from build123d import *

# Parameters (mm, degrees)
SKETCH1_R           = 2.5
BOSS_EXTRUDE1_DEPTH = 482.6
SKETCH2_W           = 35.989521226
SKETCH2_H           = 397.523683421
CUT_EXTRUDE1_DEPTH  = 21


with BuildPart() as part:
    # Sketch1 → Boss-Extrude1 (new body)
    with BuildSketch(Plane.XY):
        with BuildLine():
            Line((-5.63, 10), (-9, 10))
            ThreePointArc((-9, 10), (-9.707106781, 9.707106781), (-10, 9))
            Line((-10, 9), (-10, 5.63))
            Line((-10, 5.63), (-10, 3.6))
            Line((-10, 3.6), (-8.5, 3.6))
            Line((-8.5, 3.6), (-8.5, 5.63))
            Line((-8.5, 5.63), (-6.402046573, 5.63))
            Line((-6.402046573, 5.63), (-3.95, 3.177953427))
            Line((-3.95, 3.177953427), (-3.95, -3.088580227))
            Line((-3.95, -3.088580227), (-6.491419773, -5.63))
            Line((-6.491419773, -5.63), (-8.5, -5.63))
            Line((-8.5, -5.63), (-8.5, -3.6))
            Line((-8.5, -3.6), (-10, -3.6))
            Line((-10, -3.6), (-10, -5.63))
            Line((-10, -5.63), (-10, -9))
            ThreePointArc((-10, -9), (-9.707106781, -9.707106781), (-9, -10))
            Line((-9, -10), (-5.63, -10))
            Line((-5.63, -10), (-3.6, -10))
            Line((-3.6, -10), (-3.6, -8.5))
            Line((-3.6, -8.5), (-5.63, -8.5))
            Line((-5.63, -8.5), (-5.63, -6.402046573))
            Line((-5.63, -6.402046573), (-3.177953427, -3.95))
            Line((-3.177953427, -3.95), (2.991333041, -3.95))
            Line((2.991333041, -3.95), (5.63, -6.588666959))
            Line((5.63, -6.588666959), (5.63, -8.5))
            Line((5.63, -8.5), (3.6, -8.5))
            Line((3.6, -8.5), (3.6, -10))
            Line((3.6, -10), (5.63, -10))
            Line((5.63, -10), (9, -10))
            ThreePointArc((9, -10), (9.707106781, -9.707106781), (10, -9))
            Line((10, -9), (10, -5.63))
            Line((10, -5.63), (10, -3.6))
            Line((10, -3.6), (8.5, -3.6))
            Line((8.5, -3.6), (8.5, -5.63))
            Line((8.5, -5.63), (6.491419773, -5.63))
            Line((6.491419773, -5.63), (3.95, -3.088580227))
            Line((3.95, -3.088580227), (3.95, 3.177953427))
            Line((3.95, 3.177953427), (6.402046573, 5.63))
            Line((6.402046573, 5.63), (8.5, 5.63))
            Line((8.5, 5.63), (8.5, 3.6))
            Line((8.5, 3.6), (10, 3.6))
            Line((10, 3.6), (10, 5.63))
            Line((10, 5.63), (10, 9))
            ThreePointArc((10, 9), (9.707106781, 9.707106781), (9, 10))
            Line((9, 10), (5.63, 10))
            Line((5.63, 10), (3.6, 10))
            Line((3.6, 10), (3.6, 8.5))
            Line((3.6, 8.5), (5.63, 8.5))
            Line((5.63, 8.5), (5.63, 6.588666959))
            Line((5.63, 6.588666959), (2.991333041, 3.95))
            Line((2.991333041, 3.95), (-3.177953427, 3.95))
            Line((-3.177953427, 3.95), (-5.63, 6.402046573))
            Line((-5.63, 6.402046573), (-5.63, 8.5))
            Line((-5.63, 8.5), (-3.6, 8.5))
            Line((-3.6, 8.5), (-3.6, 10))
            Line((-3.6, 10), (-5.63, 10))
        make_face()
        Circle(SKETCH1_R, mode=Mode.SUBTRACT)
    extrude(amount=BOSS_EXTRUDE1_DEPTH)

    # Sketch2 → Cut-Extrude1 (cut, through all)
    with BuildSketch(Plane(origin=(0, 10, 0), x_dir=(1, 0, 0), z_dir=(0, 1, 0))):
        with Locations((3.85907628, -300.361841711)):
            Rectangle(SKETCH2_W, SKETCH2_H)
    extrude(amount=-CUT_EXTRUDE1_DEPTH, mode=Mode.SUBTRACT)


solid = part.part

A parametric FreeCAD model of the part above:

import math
import FreeCAD as App
import Part
import Sketcher
from FreeCAD import Vector
Q = App.Units.Quantity

doc = App.newDocument("Part")
body = doc.addObject("PartDesign::Body", "Body")

# Sketch on XY plane
sketch1 = body.newObject("Sketcher::SketchObject", "Sketch")
sketch1.AttachmentSupport = (doc.getObject("XY_Plane"), [""])
sketch1.MapMode = "FlatFace"
sketch1.addGeometry([
    Part.ArcOfCircle(Part.Circle(Vector(-9, 9, 0), Vector(0, 0, 1), 1), math.radians(90), math.radians(180)),  # 0
    Part.LineSegment(Vector(-10, 9, 0), Vector(-10, 3.6, 0)),  # 1
    Part.LineSegment(Vector(-10, 3.6, 0), Vector(-8.5, 3.6, 0)),  # 2
    Part.LineSegment(Vector(-8.5, 3.6, 0), Vector(-8.5, 5.6, 0)),  # 3
    Part.LineSegment(Vector(-8.5, 5.6, 0), Vector(-6.4, 5.6, 0)),  # 4
    Part.LineSegment(Vector(-6.4, 5.6, 0), Vector(-4, 3.2, 0)),  # 5
    Part.LineSegment(Vector(-4, 3.2, 0), Vector(-4, -3.1, 0)),  # 6
    Part.LineSegment(Vector(-4, -3.1, 0), Vector(-6.5, -5.6, 0)),  # 7
    Part.LineSegment(Vector(-6.5, -5.6, 0), Vector(-8.5, -5.6, 0)),  # 8
    Part.LineSegment(Vector(-8.5, -5.6, 0), Vector(-8.5, -3.6, 0)),  # 9
    Part.LineSegment(Vector(-8.5, -3.6, 0), Vector(-10, -3.6, 0)),  # 10
    Part.LineSegment(Vector(-10, -3.6, 0), Vector(-10, -9, 0)),  # 11
    Part.ArcOfCircle(Part.Circle(Vector(-9, -9, 0), Vector(0, 0, 1), 1), math.radians(-180), math.radians(-90)),  # 12
    Part.LineSegment(Vector(-9, -10, 0), Vector(-3.6, -10, 0)),  # 13
    Part.LineSegment(Vector(-3.6, -10, 0), Vector(-3.6, -8.5, 0)),  # 14
    Part.LineSegment(Vector(-3.6, -8.5, 0), Vector(-5.6, -8.5, 0)),  # 15
    Part.LineSegment(Vector(-5.6, -8.5, 0), Vector(-5.6, -6.4, 0)),  # 16
    Part.LineSegment(Vector(-5.6, -6.4, 0), Vector(-3.2, -4, 0)),  # 17
    Part.LineSegment(Vector(-3.2, -4, 0), Vector(3, -4, 0)),  # 18
    Part.LineSegment(Vector(3, -4, 0), Vector(5.6, -6.6, 0)),  # 19
    Part.LineSegment(Vector(5.6, -6.6, 0), Vector(5.6, -8.5, 0)),  # 20
    Part.LineSegment(Vector(5.6, -8.5, 0), Vector(3.6, -8.5, 0)),  # 21
    Part.LineSegment(Vector(3.6, -8.5, 0), Vector(3.6, -10, 0)),  # 22
    Part.LineSegment(Vector(3.6, -10, 0), Vector(9, -10, 0)),  # 23
    Part.ArcOfCircle(Part.Circle(Vector(9, -9, 0), Vector(0, 0, 1), 1), math.radians(-90), math.radians(0)),  # 24
    Part.LineSegment(Vector(10, -9, 0), Vector(10, -3.6, 0)),  # 25
    Part.LineSegment(Vector(10, -3.6, 0), Vector(8.5, -3.6, 0)),  # 26
    Part.LineSegment(Vector(8.5, -3.6, 0), Vector(8.5, -5.6, 0)),  # 27
    Part.LineSegment(Vector(8.5, -5.6, 0), Vector(6.5, -5.6, 0)),  # 28
    Part.LineSegment(Vector(6.5, -5.6, 0), Vector(4, -3.1, 0)),  # 29
    Part.LineSegment(Vector(4, -3.1, 0), Vector(4, 3.2, 0)),  # 30
    Part.LineSegment(Vector(4, 3.2, 0), Vector(6.4, 5.6, 0)),  # 31
    Part.LineSegment(Vector(6.4, 5.6, 0), Vector(8.5, 5.6, 0)),  # 32
    Part.LineSegment(Vector(8.5, 5.6, 0), Vector(8.5, 3.6, 0)),  # 33
    Part.LineSegment(Vector(8.5, 3.6, 0), Vector(10, 3.6, 0)),  # 34
    Part.LineSegment(Vector(10, 3.6, 0), Vector(10, 9, 0)),  # 35
    Part.ArcOfCircle(Part.Circle(Vector(9, 9, 0), Vector(0, 0, 1), 1), math.radians(0), math.radians(90)),  # 36
    Part.LineSegment(Vector(9, 10, 0), Vector(3.6, 10, 0)),  # 37
    Part.LineSegment(Vector(3.6, 10, 0), Vector(3.6, 8.5, 0)),  # 38
    Part.LineSegment(Vector(3.6, 8.5, 0), Vector(5.6, 8.5, 0)),  # 39
    Part.LineSegment(Vector(5.6, 8.5, 0), Vector(5.6, 6.6, 0)),  # 40
    Part.LineSegment(Vector(5.6, 6.6, 0), Vector(3, 4, 0)),  # 41
    Part.LineSegment(Vector(3, 4, 0), Vector(-3.2, 4, 0)),  # 42
    Part.LineSegment(Vector(-3.2, 4, 0), Vector(-5.6, 6.4, 0)),  # 43
    Part.LineSegment(Vector(-5.6, 6.4, 0), Vector(-5.6, 8.5, 0)),  # 44
    Part.LineSegment(Vector(-5.6, 8.5, 0), Vector(-3.6, 8.5, 0)),  # 45
    Part.LineSegment(Vector(-3.6, 8.5, 0), Vector(-3.6, 10, 0)),  # 46
    Part.LineSegment(Vector(-3.6, 10, 0), Vector(-9, 10, 0)),  # 47
    Part.Circle(Vector(0, 0, 0), Vector(0, 0, 1), 2.5),  # 48
], False)
sketch1.addConstraint([
    Sketcher.Constraint("Tangent", 0, 2, 1, 1),
    Sketcher.Constraint("Coincident", 1, 2, 2, 1),
    Sketcher.Constraint("Coincident", 2, 2, 3, 1),
    Sketcher.Constraint("Coincident", 3, 2, 4, 1),
    Sketcher.Constraint("Coincident", 4, 2, 5, 1),
    Sketcher.Constraint("Coincident", 5, 2, 6, 1),
    Sketcher.Constraint("Coincident", 6, 2, 7, 1),
    Sketcher.Constraint("Coincident", 7, 2, 8, 1),
    Sketcher.Constraint("Coincident", 8, 2, 9, 1),
    Sketcher.Constraint("Coincident", 9, 2, 10, 1),
    Sketcher.Constraint("Coincident", 10, 2, 11, 1),
    Sketcher.Constraint("Tangent", 11, 2, 12, 1),
    Sketcher.Constraint("Tangent", 12, 2, 13, 1),
    Sketcher.Constraint("Coincident", 13, 2, 14, 1),
    Sketcher.Constraint("Coincident", 14, 2, 15, 1),
    Sketcher.Constraint("Coincident", 15, 2, 16, 1),
    Sketcher.Constraint("Coincident", 16, 2, 17, 1),
    Sketcher.Constraint("Coincident", 17, 2, 18, 1),
    Sketcher.Constraint("Coincident", 18, 2, 19, 1),
    Sketcher.Constraint("Coincident", 19, 2, 20, 1),
    Sketcher.Constraint("Coincident", 20, 2, 21, 1),
    Sketcher.Constraint("Coincident", 21, 2, 22, 1),
    Sketcher.Constraint("Coincident", 22, 2, 23, 1),
    Sketcher.Constraint("Tangent", 23, 2, 24, 1),
    Sketcher.Constraint("Tangent", 24, 2, 25, 1),
    Sketcher.Constraint("Coincident", 25, 2, 26, 1),
    Sketcher.Constraint("Coincident", 26, 2, 27, 1),
    Sketcher.Constraint("Coincident", 27, 2, 28, 1),
    Sketcher.Constraint("Coincident", 28, 2, 29, 1),
    Sketcher.Constraint("Coincident", 29, 2, 30, 1),
    Sketcher.Constraint("Coincident", 30, 2, 31, 1),
    Sketcher.Constraint("Coincident", 31, 2, 32, 1),
    Sketcher.Constraint("Coincident", 32, 2, 33, 1),
    Sketcher.Constraint("Coincident", 33, 2, 34, 1),
    Sketcher.Constraint("Coincident", 34, 2, 35, 1),
    Sketcher.Constraint("Tangent", 35, 2, 36, 1),
    Sketcher.Constraint("Tangent", 36, 2, 37, 1),
    Sketcher.Constraint("Coincident", 37, 2, 38, 1),
    Sketcher.Constraint("Coincident", 38, 2, 39, 1),
    Sketcher.Constraint("Coincident", 39, 2, 40, 1),
    Sketcher.Constraint("Coincident", 40, 2, 41, 1),
    Sketcher.Constraint("Coincident", 41, 2, 42, 1),
    Sketcher.Constraint("Coincident", 42, 2, 43, 1),
    Sketcher.Constraint("Coincident", 43, 2, 44, 1),
    Sketcher.Constraint("Coincident", 44, 2, 45, 1),
    Sketcher.Constraint("Coincident", 45, 2, 46, 1),
    Sketcher.Constraint("Coincident", 46, 2, 47, 1),
    Sketcher.Constraint("Tangent", 47, 2, 0, 1),
    Sketcher.Constraint("Vertical", 1),
    Sketcher.Constraint("Horizontal", 2),
    Sketcher.Constraint("Vertical", 3),
    Sketcher.Constraint("Horizontal", 4),
    Sketcher.Constraint("Vertical", 6),
    Sketcher.Constraint("Horizontal", 8),
    Sketcher.Constraint("Vertical", 9),
    Sketcher.Constraint("Horizontal", 10),
    Sketcher.Constraint("Vertical", 11),
    Sketcher.Constraint("Horizontal", 13),
    Sketcher.Constraint("Vertical", 14),
    Sketcher.Constraint("Horizontal", 15),
    Sketcher.Constraint("Vertical", 16),
    Sketcher.Constraint("Horizontal", 18),
    Sketcher.Constraint("Vertical", 20),
    Sketcher.Constraint("Horizontal", 21),
    Sketcher.Constraint("Vertical", 22),
    Sketcher.Constraint("Horizontal", 23),
    Sketcher.Constraint("Vertical", 25),
    Sketcher.Constraint("Horizontal", 26),
    Sketcher.Constraint("Vertical", 27),
    Sketcher.Constraint("Horizontal", 28),
    Sketcher.Constraint("Vertical", 30),
    Sketcher.Constraint("Horizontal", 32),
    Sketcher.Constraint("Vertical", 33),
    Sketcher.Constraint("Horizontal", 34),
    Sketcher.Constraint("Vertical", 35),
    Sketcher.Constraint("Horizontal", 37),
    Sketcher.Constraint("Vertical", 38),
    Sketcher.Constraint("Horizontal", 39),
    Sketcher.Constraint("Vertical", 40),
    Sketcher.Constraint("Horizontal", 42),
    Sketcher.Constraint("Vertical", 44),
    Sketcher.Constraint("Horizontal", 45),
    Sketcher.Constraint("Vertical", 46),
    Sketcher.Constraint("Horizontal", 47),
    Sketcher.Constraint("Coincident", 48, 3, -1, 1),
    Sketcher.Constraint("Equal", 0, 12),
    Sketcher.Constraint("Equal", 12, 24),
    Sketcher.Constraint("Equal", 24, 36),
    Sketcher.Constraint("Symmetric", 0, 3, 24, 3, -1, 1),
    Sketcher.Constraint("Symmetric", 12, 3, 36, 3, -1, 1),
    Sketcher.Constraint("Symmetric", 2, 2, 26, 2, -1, 1),
    Sketcher.Constraint("Symmetric", 8, 2, 32, 2, -1, 1),
    Sketcher.Constraint("Symmetric", 14, 2, 38, 2, -1, 1),
    Sketcher.Constraint("Symmetric", 20, 2, 44, 2, -1, 1),
    Sketcher.Constraint("Symmetric", 12, 3, 24, 3, -2),
    Sketcher.Constraint("Symmetric", 15, 2, 20, 2, -2),
    Sketcher.Constraint("Symmetric", 9, 2, 26, 2, -2),
    Sketcher.Constraint("Symmetric", 7, 2, 28, 2, -2),
    Sketcher.Constraint("Symmetric", 6, 2, 29, 2, -2),
    Sketcher.Constraint("Symmetric", 4, 2, 31, 2, -2),
    Sketcher.Constraint("Symmetric", 19, 2, 40, 2, -1),
    Sketcher.Constraint("Symmetric", 18, 2, 41, 2, -1),
    Sketcher.Constraint("Perpendicular", 5, 7),
    Sketcher.Constraint("Parallel", 7, 17),
    Sketcher.Constraint("Perpendicular", 17, 19),
    Sketcher.Constraint("Parallel", 19, 29),
    Sketcher.Constraint("Perpendicular", 29, 31),
    Sketcher.Constraint("Perpendicular", 41, 43),
    Sketcher.Constraint("Horizontal", 2, 2, 33, 2),
    Sketcher.Constraint("Vertical", 22, 2, 37, 2),
    Sketcher.Constraint("Vertical", 17, 2, 42, 2),
    Sketcher.Constraint("Vertical", 14, 2, 45, 2),
    Sketcher.Constraint("Equal", 47, 1),
    Sketcher.Constraint("Equal", 45, 3),
    Sketcher.Constraint("Equal", 34, 14),
    Sketcher.Constraint("Equal", 32, 16),
    Sketcher.Constraint("Equal", 5, 17),
    Sketcher.Constraint("Diameter", 48, Q("5 mm")),
    Sketcher.Constraint("Radius", 0, Q("1 mm")),
    Sketcher.Constraint("DistanceX", 2, 1, 2, 2, Q("1.5 mm")),
    Sketcher.Constraint("DistanceX", 13, 1, 13, 2, Q("5.4 mm")),
    Sketcher.Constraint("DistanceX", 0, 3, -1, 1, Q("9 mm")),
    Sketcher.Constraint("DistanceY", -1, 1, 0, 3, Q("9 mm")),
    Sketcher.Constraint("DistanceX", 15, 2, 15, 1, Q("2.03 mm")),
    Sketcher.Constraint("DistanceX", 5, 2, 30, 2, Q("7.9 mm")),
    Sketcher.Constraint("DistanceX", 8, 2, 8, 1, Q("2.00858 mm")),
    Sketcher.Constraint("Distance", 19, Q("3.731639 mm")),
    Sketcher.Constraint("DistanceX", 4, 1, 4, 2, Q("2.097953 mm")),
])
pad1 = body.newObject("PartDesign::Pad", "Pad")
pad1.Profile = sketch1
pad1.Length = 482.6

# Sketch on XZ plane
sketch2 = body.newObject("Sketcher::SketchObject", "Sketch001")
sketch2.AttachmentSupport = (doc.getObject("XZ_Plane"), [""])
sketch2.MapMode = "FlatFace"
sketch2.AttachmentOffset = App.Placement(Vector(0, 0, -10), App.Rotation())
sketch2.addGeometry([
    Part.LineSegment(Vector(-14, 102, 0), Vector(-14, 499, 0)),
    Part.LineSegment(Vector(-14, 499, 0), Vector(22, 499, 0)),
    Part.LineSegment(Vector(22, 499, 0), Vector(22, 102, 0)),
    Part.LineSegment(Vector(22, 102, 0), Vector(-14, 102, 0)),
], False)
sketch2.addConstraint([
    Sketcher.Constraint("Coincident", 0, 2, 1, 1),
    Sketcher.Constraint("Coincident", 1, 2, 2, 1),
    Sketcher.Constraint("Coincident", 2, 2, 3, 1),
    Sketcher.Constraint("Coincident", 3, 2, 0, 1),
    Sketcher.Constraint("Vertical", 0),
    Sketcher.Constraint("Horizontal", 1),
    Sketcher.Constraint("Vertical", 2),
    Sketcher.Constraint("Horizontal", 3),
    Sketcher.Constraint("DistanceY", -1, 1, 2, 2, Q("101.6 mm")),
    Sketcher.Constraint("DistanceX", 1, 1, 1, 2, Q("35.989521 mm")),
    Sketcher.Constraint("DistanceY", 0, 1, 0, 2, Q("397.523683 mm")),
    Sketcher.Constraint("DistanceX", 0, 2, -1, 1, Q("14.135684 mm")),
])
pocket1 = body.newObject("PartDesign::Pocket", "Pocket")
pocket1.Profile = sketch2
pocket1.Type = "ThroughAll"
pocket1.Reversed = True

doc.recompute()
